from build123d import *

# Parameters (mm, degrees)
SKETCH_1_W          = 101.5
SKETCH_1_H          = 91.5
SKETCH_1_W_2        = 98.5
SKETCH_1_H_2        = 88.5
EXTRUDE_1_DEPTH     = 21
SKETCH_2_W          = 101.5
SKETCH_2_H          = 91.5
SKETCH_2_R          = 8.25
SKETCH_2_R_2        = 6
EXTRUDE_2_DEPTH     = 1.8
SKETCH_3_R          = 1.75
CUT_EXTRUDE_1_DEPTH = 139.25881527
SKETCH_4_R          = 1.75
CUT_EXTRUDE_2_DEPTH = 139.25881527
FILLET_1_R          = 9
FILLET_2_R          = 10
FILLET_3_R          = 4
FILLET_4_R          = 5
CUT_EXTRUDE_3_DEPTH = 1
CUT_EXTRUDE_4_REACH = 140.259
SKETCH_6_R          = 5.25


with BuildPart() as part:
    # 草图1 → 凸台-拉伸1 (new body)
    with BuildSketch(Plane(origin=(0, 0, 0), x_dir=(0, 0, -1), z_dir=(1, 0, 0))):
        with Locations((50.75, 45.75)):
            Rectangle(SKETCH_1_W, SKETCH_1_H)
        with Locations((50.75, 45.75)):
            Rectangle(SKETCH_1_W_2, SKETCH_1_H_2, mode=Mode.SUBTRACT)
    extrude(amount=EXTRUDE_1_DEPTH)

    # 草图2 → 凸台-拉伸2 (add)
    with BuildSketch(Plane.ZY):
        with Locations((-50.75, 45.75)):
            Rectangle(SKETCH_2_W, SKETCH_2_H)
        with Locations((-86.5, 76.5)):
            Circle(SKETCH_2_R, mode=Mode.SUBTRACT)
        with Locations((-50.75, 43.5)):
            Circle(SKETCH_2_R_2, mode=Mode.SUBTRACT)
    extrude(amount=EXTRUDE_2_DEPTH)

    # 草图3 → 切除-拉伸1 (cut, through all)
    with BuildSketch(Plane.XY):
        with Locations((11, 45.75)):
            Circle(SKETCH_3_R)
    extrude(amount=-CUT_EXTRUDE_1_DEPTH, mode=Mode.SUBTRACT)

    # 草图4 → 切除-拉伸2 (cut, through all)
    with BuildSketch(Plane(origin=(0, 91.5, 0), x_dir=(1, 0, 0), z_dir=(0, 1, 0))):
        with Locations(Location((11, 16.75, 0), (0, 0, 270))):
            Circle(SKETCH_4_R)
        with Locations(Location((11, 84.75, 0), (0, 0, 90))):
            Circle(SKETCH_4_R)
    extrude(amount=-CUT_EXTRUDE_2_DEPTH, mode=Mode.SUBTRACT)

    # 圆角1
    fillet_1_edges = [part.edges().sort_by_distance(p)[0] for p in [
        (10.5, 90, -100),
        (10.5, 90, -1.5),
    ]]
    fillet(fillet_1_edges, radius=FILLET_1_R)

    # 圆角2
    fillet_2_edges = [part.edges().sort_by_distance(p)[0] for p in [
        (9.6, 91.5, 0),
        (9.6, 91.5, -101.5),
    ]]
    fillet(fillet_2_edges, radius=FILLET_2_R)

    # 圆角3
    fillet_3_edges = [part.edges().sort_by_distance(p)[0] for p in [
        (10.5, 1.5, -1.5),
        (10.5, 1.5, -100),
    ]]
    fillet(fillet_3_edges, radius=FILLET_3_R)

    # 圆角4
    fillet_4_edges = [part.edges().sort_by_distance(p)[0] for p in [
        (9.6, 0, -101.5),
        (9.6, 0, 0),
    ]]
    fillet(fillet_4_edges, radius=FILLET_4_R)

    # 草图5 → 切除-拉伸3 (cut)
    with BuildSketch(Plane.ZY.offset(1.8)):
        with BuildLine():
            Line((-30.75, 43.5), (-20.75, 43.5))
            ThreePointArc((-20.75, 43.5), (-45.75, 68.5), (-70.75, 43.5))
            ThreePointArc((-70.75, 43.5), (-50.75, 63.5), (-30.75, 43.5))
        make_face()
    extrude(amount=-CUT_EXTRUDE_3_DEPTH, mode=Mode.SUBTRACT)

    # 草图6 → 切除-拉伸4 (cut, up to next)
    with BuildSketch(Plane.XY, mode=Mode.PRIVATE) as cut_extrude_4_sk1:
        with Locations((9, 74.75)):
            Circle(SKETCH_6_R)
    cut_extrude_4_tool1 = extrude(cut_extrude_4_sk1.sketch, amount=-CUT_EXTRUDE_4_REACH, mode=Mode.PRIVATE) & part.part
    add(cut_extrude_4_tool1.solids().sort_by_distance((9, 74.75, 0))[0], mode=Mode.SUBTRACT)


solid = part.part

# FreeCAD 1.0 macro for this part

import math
import FreeCAD as App
import Part
import Sketcher
Q = App.Units.Quantity


def edges_at(feature, points):
    """Names of the edges that pass closest to the given points."""
    edges = feature.Shape.Edges
    near = lambda p: min(range(len(edges)), key=lambda i: edges[i].distToShape(Part.Vertex(*p))[0])
    return sorted({f"Edge{near(p) + 1}" for p in points})


def add_polygon(sketch, points):
    """Adds a closed chain of lines whose ends are joined by coincident constraints."""
    first, n = sketch.GeometryCount, len(points)
    for a, b in zip(points, points[1:] + points[:1]):
        sketch.addGeometry(Part.LineSegment(App.Vector(*a, 0), App.Vector(*b, 0)), False)
    for i in range(n):
        sketch.addConstraint(Sketcher.Constraint("Coincident", first + i, 2, first + (i + 1) % n, 1))

doc = App.newDocument("Part")
params = doc.addObject("Spreadsheet::Sheet", "Params")
for row, (alias, value) in enumerate([
    ("sketch1_width", "91.5 mm"),
    ("sketch1_width2", "88.5 mm"),
    ("sketch1_height", "101.5 mm"),
    ("sketch1_height2", "98.5 mm"),
    ("pad1_length", "21 mm"),
    ("sketch2_diameter", "12 mm"),
    ("sketch2_diameter2", "16.5 mm"),
    ("sketch2_width", "91.5 mm"),
    ("sketch2_height", "101.5 mm"),
    ("pad2_length", "1.8 mm"),
    ("sketch3_diameter", "3.5 mm"),
    ("sketch4_diameter", "3.5 mm"),
    ("fillet_radius", "9 mm"),
    ("fillet2_radius", "10 mm"),
    ("fillet3_radius", "4 mm"),
    ("fillet4_radius", "5 mm"),
    ("sketch5_radius", "25 mm"),
    ("sketch5_radius2", "20 mm"),
    ("pocket3_length", "1 mm"),
    ("sketch6_diameter", "10.5 mm"),
], start=1):
    params.set(f"A{row}", alias)
    params.set(f"B{row}", "=" + value)
    params.setAlias(f"B{row}", alias)

body = doc.addObject("PartDesign::Body", "Body")

sketch1 = doc.addObject("Sketcher::SketchObject", "Sketch")
body.addObject(sketch1)
sketch1.AttachmentSupport = (doc.YZ_Plane, [""])
sketch1.MapMode = "FlatFace"
add_polygon(sketch1, [(91.5, 0), (0, 0), (0, -101.5), (91.5, -101.5)])
add_polygon(sketch1, [(1.5, -100), (1.5, -1.5), (90, -1.5), (90, -100)])
sketch1.addConstraint([
    Sketcher.Constraint("Horizontal", 0),
    Sketcher.Constraint("Vertical", 1),
    Sketcher.Constraint("Horizontal", 2),
    Sketcher.Constraint("Vertical", 3),
    Sketcher.Constraint("Vertical", 4),
    Sketcher.Constraint("Horizontal", 5),
    Sketcher.Constraint("Vertical", 6),
    Sketcher.Constraint("Horizontal", 7),
    Sketcher.Constraint("Coincident", 0, 2, -1, 1),
    Sketcher.Constraint("DistanceX", 0, 2, 0, 1, Q("91.5 mm")),
    Sketcher.Constraint("DistanceX", 5, 1, 5, 2, Q("88.5 mm")),
    Sketcher.Constraint("DistanceY", 1, 2, 1, 1, Q("101.5 mm")),
    Sketcher.Constraint("DistanceY", 4, 1, 4, 2, Q("98.5 mm")),
    Sketcher.Constraint("DistanceX", -1, 1, 5, 2, Q("90 mm")),
    Sketcher.Constraint("DistanceY", 6, 2, -1, 1, Q("100 mm")),
])
sketch1.setExpression("Constraints[17]", "Params.sketch1_width")
sketch1.setExpression("Constraints[18]", "Params.sketch1_width2")
sketch1.setExpression("Constraints[19]", "Params.sketch1_height")
sketch1.setExpression("Constraints[20]", "Params.sketch1_height2")
pad1 = doc.addObject("PartDesign::Pad", "Pad")
body.addObject(pad1)
pad1.Profile = sketch1
pad1.setExpression("Length", "Params.pad1_length")

sketch2 = doc.addObject("Sketcher::SketchObject", "Sketch001")
body.addObject(sketch2)
sketch2.AttachmentSupport = (doc.YZ_Plane, [""])
sketch2.MapMode = "FlatFace"
add_polygon(sketch2, [(91.5, -101.5), (0, -101.5), (0, 0), (91.5, 0)])
sketch2.addGeometry(Part.Circle(App.Vector(43.5, -50.75, 0), App.Vector(0, 0, 1), 6), False)
sketch2.addGeometry(Part.Circle(App.Vector(76.5, -86.5, 0), App.Vector(0, 0, 1), 8.25), False)
sketch2.addConstraint([
    Sketcher.Constraint("Horizontal", 0),
    Sketcher.Constraint("Vertical", 1),
    Sketcher.Constraint("Horizontal", 2),
    Sketcher.Constraint("Vertical", 3),
    Sketcher.Constraint("Coincident", 1, 2, -1, 1),
    Sketcher.Constraint("Diameter", 4, Q("12 mm")),
    Sketcher.Constraint("Diameter", 5, Q("16.5 mm")),
    Sketcher.Constraint("DistanceX", 0, 2, 0, 1, Q("91.5 mm")),
    Sketcher.Constraint("DistanceY", 1, 1, 1, 2, Q("101.5 mm")),
    Sketcher.Constraint("DistanceX", 4, 3, 5, 3, Q("33 mm")),
    Sketcher.Constraint("DistanceY", 0, 2, 5, 3, Q("15 mm")),
    Sketcher.Constraint("DistanceX", 4, 3, 2, 2, Q("48 mm")),
    Sketcher.Constraint("DistanceY", 4, 3, -1, 1, Q("50.75 mm")),
])
sketch2.setExpression("Constraints[9]", "Params.sketch2_diameter")
sketch2.setExpression("Constraints[10]", "Params.sketch2_diameter2")
sketch2.setExpression("Constraints[11]", "Params.sketch2_width")
sketch2.setExpression("Constraints[12]", "Params.sketch2_height")
pad2 = doc.addObject("PartDesign::Pad", "Pad001")
body.addObject(pad2)
pad2.Profile = sketch2
pad2.setExpression("Length", "Params.pad2_length")
pad2.Reversed = True

sketch3 = doc.addObject("Sketcher::SketchObject", "Sketch002")
body.addObject(sketch3)
sketch3.AttachmentSupport = (doc.XY_Plane, [""])
sketch3.MapMode = "FlatFace"
sketch3.addGeometry(Part.Circle(App.Vector(11, 45.75, 0), App.Vector(0, 0, 1), 1.75), False)
sketch3.addConstraint([
    Sketcher.Constraint("Diameter", 0, Q("3.5 mm")),
    Sketcher.Constraint("DistanceX", -1, 1, 0, 3, Q("11 mm")),
    Sketcher.Constraint("DistanceY", -1, 1, 0, 3, Q("45.75 mm")),
])
sketch3.setExpression("Constraints[0]", "Params.sketch3_diameter")
pocket1 = doc.addObject("PartDesign::Pocket", "Pocket")
body.addObject(pocket1)
pocket1.Profile = sketch3
pocket1.Type = "ThroughAll"

sketch4 = doc.addObject("Sketcher::SketchObject", "Sketch003")
body.addObject(sketch4)
sketch4.AttachmentSupport = (doc.XZ_Plane, [""])
sketch4.MapMode = "FlatFace"
sketch4.AttachmentOffset = App.Placement(App.Vector(0, 0, -91.5), App.Rotation())
sketch4.addGeometry([
    Part.Circle(App.Vector(11, -16.75, 0), App.Vector(0, 0, 1), 1.75),
    Part.Circle(App.Vector(11, -84.75, 0), App.Vector(0, 0, 1), 1.75),
], False)
sketch4.addConstraint([
    Sketcher.Constraint("Equal", 0, 1),
    Sketcher.Constraint("Vertical", 0, 3, 1, 3),
    Sketcher.Constraint("Diameter", 0, Q("3.5 mm")),
    Sketcher.Constraint("DistanceX", -1, 1, 0, 3, Q("11 mm")),
    Sketcher.Constraint("DistanceY", 1, 3, 0, 3, Q("68 mm")),
    Sketcher.Constraint("DistanceY", 0, 3, -1, 1, Q("16.75 mm")),
])
sketch4.setExpression("Constraints[2]", "Params.sketch4_diameter")
pocket2 = doc.addObject("PartDesign::Pocket", "Pocket001")
body.addObject(pocket2)
pocket2.Profile = sketch4
pocket2.Type = "ThroughAll"
pocket2.Reversed = True
doc.recompute()

fillet = doc.addObject("PartDesign::Fillet", "Fillet")
body.addObject(fillet)
fillet.Base = (pocket2, edges_at(pocket2, [(10.5, 90, -100), (10.5, 90, -1.5)]))
fillet.setExpression("Radius", "Params.fillet_radius")
doc.recompute()

fillet2 = doc.addObject("PartDesign::Fillet", "Fillet001")
body.addObject(fillet2)
fillet2.Base = (fillet, edges_at(fillet, [(9.6, 91.5, 0), (9.6, 91.5, -101.5)]))
fillet2.setExpression("Radius", "Params.fillet2_radius")
doc.recompute()

fillet3 = doc.addObject("PartDesign::Fillet", "Fillet002")
body.addObject(fillet3)
fillet3.Base = (fillet2, edges_at(fillet2, [(10.5, 1.5, -1.5), (10.5, 1.5, -100)]))
fillet3.setExpression("Radius", "Params.fillet3_radius")
doc.recompute()

fillet4 = doc.addObject("PartDesign::Fillet", "Fillet003")
body.addObject(fillet4)
fillet4.Base = (fillet3, edges_at(fillet3, [(9.6, 0, -101.5), (9.6, 0, 0)]))
fillet4.setExpression("Radius", "Params.fillet4_radius")

sketch5 = doc.addObject("Sketcher::SketchObject", "Sketch004")
body.addObject(sketch5)
sketch5.AttachmentSupport = (doc.YZ_Plane, [""])
sketch5.MapMode = "FlatFace"
sketch5.AttachmentOffset = App.Placement(App.Vector(0, 0, -1.8), App.Rotation())
sketch5.addGeometry([
    Part.LineSegment(App.Vector(43.5, -30.75, 0), App.Vector(43.5, -20.75, 0)),
    Part.ArcOfCircle(Part.Circle(App.Vector(43.5, -45.75, 0), App.Vector(0, 0, 1), 25), math.radians(-90), math.radians(90)),
    Part.ArcOfCircle(Part.Circle(App.Vector(43.5, -50.75, 0), App.Vector(0, 0, 1), 20), math.radians(-90), math.radians(90)),
], False)
sketch5.addConstraint([
    Sketcher.Constraint("Coincident", 0, 2, 1, 2),
    Sketcher.Constraint("Tangent", 1, 1, 2, 1),
    Sketcher.Constraint("Coincident", 2, 2, 0, 1),
    Sketcher.Constraint("Vertical", 0),
    Sketcher.Constraint("Vertical", 1, 3, 2, 3),
    Sketcher.Constraint("Vertical", 2, 3, 0, 2),
    Sketcher.Constraint("Radius", 1, Q("25 mm")),
    Sketcher.Constraint("Radius", 2, Q("20 mm")),
    Sketcher.Constraint("DistanceX", -1, 1, 1, 3, Q("43.5 mm")),
    Sketcher.Constraint("DistanceY", 1, 3, -1, 1, Q("45.75 mm")),
])
sketch5.setExpression("Constraints[6]", "Params.sketch5_radius")
sketch5.setExpression("Constraints[7]", "Params.sketch5_radius2")
pocket3 = doc.addObject("PartDesign::Pocket", "Pocket002")
body.addObject(pocket3)
pocket3.Profile = sketch5
pocket3.setExpression("Length", "Params.pocket3_length")
pocket3.Reversed = True

sketch6 = doc.addObject("Sketcher::SketchObject", "Sketch005")
body.addObject(sketch6)
sketch6.AttachmentSupport = (doc.XY_Plane, [""])
sketch6.MapMode = "FlatFace"
sketch6.addGeometry(Part.Circle(App.Vector(9, 74.75, 0), App.Vector(0, 0, 1), 5.25), False)
sketch6.addConstraint([
    Sketcher.Constraint("Diameter", 0, Q("10.5 mm")),
    Sketcher.Constraint("DistanceX", -1, 1, 0, 3, Q("9 mm")),
    Sketcher.Constraint("DistanceY", -1, 1, 0, 3, Q("74.75 mm")),
])
sketch6.setExpression("Constraints[0]", "Params.sketch6_diameter")
pocket4 = doc.addObject("PartDesign::Pocket", "Pocket003")
body.addObject(pocket4)
pocket4.Profile = sketch6
pocket4.Type = "UpToFirst"

doc.recompute()
